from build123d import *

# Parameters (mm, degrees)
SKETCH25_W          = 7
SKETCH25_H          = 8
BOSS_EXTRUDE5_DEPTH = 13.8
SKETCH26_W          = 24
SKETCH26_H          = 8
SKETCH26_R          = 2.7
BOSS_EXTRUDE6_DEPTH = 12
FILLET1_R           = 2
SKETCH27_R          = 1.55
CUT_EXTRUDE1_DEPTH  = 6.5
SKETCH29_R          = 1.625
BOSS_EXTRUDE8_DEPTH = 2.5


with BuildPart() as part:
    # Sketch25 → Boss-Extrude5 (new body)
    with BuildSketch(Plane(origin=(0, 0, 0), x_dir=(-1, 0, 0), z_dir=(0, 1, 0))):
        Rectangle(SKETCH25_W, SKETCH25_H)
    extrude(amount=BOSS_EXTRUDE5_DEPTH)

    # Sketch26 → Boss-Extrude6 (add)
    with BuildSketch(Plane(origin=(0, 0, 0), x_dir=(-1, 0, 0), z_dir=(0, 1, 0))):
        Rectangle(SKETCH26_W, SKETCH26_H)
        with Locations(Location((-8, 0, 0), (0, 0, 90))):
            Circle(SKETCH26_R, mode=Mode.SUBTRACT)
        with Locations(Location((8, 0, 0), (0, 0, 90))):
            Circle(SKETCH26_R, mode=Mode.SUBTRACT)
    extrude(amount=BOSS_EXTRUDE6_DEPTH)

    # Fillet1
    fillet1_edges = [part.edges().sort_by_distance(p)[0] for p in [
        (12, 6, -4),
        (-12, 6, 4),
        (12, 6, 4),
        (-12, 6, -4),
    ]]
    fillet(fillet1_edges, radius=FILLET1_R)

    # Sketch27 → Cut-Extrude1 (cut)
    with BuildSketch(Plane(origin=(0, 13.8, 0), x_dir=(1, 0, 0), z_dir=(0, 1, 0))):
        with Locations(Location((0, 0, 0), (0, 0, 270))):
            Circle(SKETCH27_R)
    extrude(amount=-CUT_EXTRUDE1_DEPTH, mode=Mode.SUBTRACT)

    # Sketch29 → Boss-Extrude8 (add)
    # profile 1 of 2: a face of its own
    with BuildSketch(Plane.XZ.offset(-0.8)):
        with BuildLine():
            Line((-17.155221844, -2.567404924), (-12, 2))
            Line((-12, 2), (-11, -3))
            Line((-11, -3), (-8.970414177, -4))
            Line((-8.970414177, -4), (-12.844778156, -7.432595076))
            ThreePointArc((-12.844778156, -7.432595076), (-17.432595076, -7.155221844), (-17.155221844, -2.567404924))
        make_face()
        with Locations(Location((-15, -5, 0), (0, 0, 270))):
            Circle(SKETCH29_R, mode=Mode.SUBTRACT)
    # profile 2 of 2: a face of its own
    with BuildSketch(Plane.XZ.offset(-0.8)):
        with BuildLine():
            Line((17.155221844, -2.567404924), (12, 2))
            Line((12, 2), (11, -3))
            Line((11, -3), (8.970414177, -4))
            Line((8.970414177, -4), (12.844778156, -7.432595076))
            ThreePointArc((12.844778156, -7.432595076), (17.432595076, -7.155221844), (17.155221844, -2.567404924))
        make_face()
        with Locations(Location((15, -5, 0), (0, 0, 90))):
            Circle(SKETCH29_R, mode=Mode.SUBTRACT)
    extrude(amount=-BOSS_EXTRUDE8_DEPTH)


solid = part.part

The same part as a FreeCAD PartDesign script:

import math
import FreeCAD as App
import Part
import Sketcher

V = App.Vector


def edges_at(feature, points):
    """Names of the edges that pass closest to the given points."""
    edges = feature.Shape.Edges
    near = lambda p: min(range(len(edges)), key=lambda i: edges[i].distToShape(Part.Vertex(*p))[0])
    return sorted({f"Edge{near(p) + 1}" for p in points})


def add_polygon(sketch, points):
    """Adds a closed chain of lines whose ends are joined by coincident constraints."""
    first, n = sketch.GeometryCount, len(points)
    for a, b in zip(points, points[1:] + points[:1]):
        sketch.addGeometry(Part.LineSegment(App.Vector(*a, 0), App.Vector(*b, 0)), False)
    for i in range(n):
        sketch.addConstraint(Sketcher.Constraint("Coincident", first + i, 2, first + (i + 1) % n, 1))

doc = App.newDocument("Part")
body = doc.addObject("PartDesign::Body", "Body")

# Sketch on XZ plane
sketch1 = body.newObject("Sketcher::SketchObject", "Sketch")
sketch1.AttachmentSupport = (doc.getObject("XZ_Plane"), [""])
sketch1.MapMode = "FlatFace"
add_polygon(sketch1, [(4, 4), (4, -4), (-4, -4), (-4, 4)])  # lines 0-3
sketch1.addConstraint([
    Sketcher.Constraint("Vertical", 0),
    Sketcher.Constraint("Horizontal", 1),
    Sketcher.Constraint("Vertical", 2),
    Sketcher.Constraint("Horizontal", 3),
    Sketcher.Constraint("Symmetric", 0, 2, 2, 2, -1, 1),
    Sketcher.Constraint("DistanceX", 1, 2, 1, 1, 7.0),
    Sketcher.Constraint("DistanceY", 0, 2, 0, 1, 8.0),
])
pad1 = body.newObject("PartDesign::Pad", "Pad")
pad1.Profile = sketch1
pad1.Length = 13.8
pad1.Reversed = True

# Sketch on XZ plane
sketch2 = body.newObject("Sketcher::SketchObject", "Sketch001")
sketch2.AttachmentSupport = (doc.getObject("XZ_Plane"), [""])
sketch2.MapMode = "FlatFace"
add_polygon(sketch2, [(12, 4), (12, -4), (-12, -4), (-12, 4)])  # lines 0-3
sketch2.addGeometry(Part.Circle(V(8, 0, 0), V(0, 0, 1), 2.7), False)  # 4
sketch2.addGeometry(Part.Circle(V(-8, 0, 0), V(0, 0, 1), 2.7), False)  # 5
sketch2.addConstraint([
    Sketcher.Constraint("Vertical", 0),
    Sketcher.Constraint("Horizontal", 1),
    Sketcher.Constraint("Vertical", 2),
    Sketcher.Constraint("Horizontal", 3),
    Sketcher.Constraint("Equal", 4, 5),
    Sketcher.Constraint("Symmetric", 4, 3, 5, 3, -1, 1),
    Sketcher.Constraint("Symmetric", 0, 2, 2, 2, -1, 1),
    Sketcher.Constraint("PointOnObject", 4, 3, -1),
    Sketcher.Constraint("Diameter", 4, 5.4),
    Sketcher.Constraint("DistanceX", 1, 2, 1, 1, 24.0),
    Sketcher.Constraint("DistanceY", 0, 2, 0, 1, 8.0),
    Sketcher.Constraint("DistanceX", -1, 1, 4, 3, 8.0),
])
pad2 = body.newObject("PartDesign::Pad", "Pad001")
pad2.Profile = sketch2
pad2.Length = 12
pad2.Reversed = True
doc.recompute()

fillet = body.newObject("PartDesign::Fillet", "Fillet")
fillet.Base = (pad2, edges_at(pad2, [
    (12, 6, -4),
    (-12, 6, 4),
    (12, 6, 4),
    (-12, 6, -4),
]))
fillet.Radius = 2

# Sketch on XZ plane
sketch3 = body.newObject("Sketcher::SketchObject", "Sketch002")
sketch3.AttachmentSupport = (doc.getObject("XZ_Plane"), [""])
sketch3.MapMode = "FlatFace"
sketch3.AttachmentOffset = App.Placement(V(0, 0, -13.8), App.Rotation())
sketch3.addGeometry(Part.Circle(V(0, 0, 0), V(0, 0, 1), 1.6), False)
sketch3.addConstraint([
    Sketcher.Constraint("Coincident", 0, 3, -1, 1),
    Sketcher.Constraint("Diameter", 0, 3.1),
])
pocket1 = body.newObject("PartDesign::Pocket", "Pocket")
pocket1.Profile = sketch3
pocket1.Length = 6.5
pocket1.Reversed = True

# Sketch on XZ plane
sketch4 = body.newObject("Sketcher::SketchObject", "Sketch003")
sketch4.AttachmentSupport = (doc.getObject("XZ_Plane"), [""])
sketch4.MapMode = "FlatFace"
sketch4.AttachmentOffset = App.Placement(V(0, 0, -0.8), App.Rotation())
sketch4.addGeometry([
    Part.LineSegment(V(-12, 2, 0), V(-17.2, -2.6, 0)),  # 0
    Part.ArcOfCircle(Part.Circle(V(-15, -5, 0), V(0, 0, 1), 3.2), math.radians(132), math.radians(312)),  # 1
    Part.LineSegment(V(-12.8, -7.4, 0), V(-9, -4, 0)),  # 2
    Part.LineSegment(V(-9, -4, 0), V(-11, -3, 0)),  # 3
    Part.LineSegment(V(-11, -3, 0), V(-12, 2, 0)),  # 4
    Part.Circle(V(-15, -5, 0), V(0, 0, 1), 1.6),  # 5
    Part.LineSegment(V(17.2, -2.6, 0), V(12, 2, 0)),  # 6
    Part.LineSegment(V(12, 2, 0), V(11, -3, 0)),  # 7
    Part.LineSegment(V(11, -3, 0), V(9, -4, 0)),  # 8
    Part.LineSegment(V(9, -4, 0), V(12.8, -7.4, 0)),  # 9
    Part.ArcOfCircle(Part.Circle(V(15, -5, 0), V(0, 0, 1), 3.2), math.radians(-132), math.radians(48)),  # 10
    Part.Circle(V(15, -5, 0), V(0, 0, 1), 1.6),  # 11
], False)
sketch4.addConstraint([
    Sketcher.Constraint("Tangent", 0, 2, 1, 1),
    Sketcher.Constraint("Tangent", 1, 2, 2, 1),
    Sketcher.Constraint("Coincident", 2, 2, 3, 1),
    Sketcher.Constraint("Coincident", 3, 2, 4, 1),
    Sketcher.Constraint("Coincident", 4, 2, 0, 1),
    Sketcher.Constraint("Coincident", 6, 2, 7, 1),
    Sketcher.Constraint("Coincident", 7, 2, 8, 1),
    Sketcher.Constraint("Coincident", 8, 2, 9, 1),
    Sketcher.Constraint("Tangent", 9, 2, 10, 1),
    Sketcher.Constraint("Tangent", 10, 2, 6, 1),
    Sketcher.Constraint("Coincident", 5, 3, 1, 3),
    Sketcher.Constraint("Coincident", 11, 3, 10, 3),
    Sketcher.Constraint("Equal", 1, 10),
    Sketcher.Constraint("Equal", 5, 11),
    Sketcher.Constraint("Symmetric", 1, 3, 10, 3, -2),
    Sketcher.Constraint("Symmetric", 4, 2, 6, 2, -2),
    Sketcher.Constraint("Symmetric", 3, 2, 7, 2, -2),
    Sketcher.Constraint("Symmetric", 2, 2, 8, 2, -2),
    Sketcher.Constraint("Parallel", 0, 2),
    Sketcher.Constraint("Diameter", 5, 3.25),
    Sketcher.Constraint("Radius", 1, 3.25),
    Sketcher.Constraint("DistanceX", 1, 3, -1, 1, 15.0),
    Sketcher.Constraint("DistanceY", 1, 3, -1, 1, 5.0),
    Sketcher.Constraint("DistanceY", 2, 2, -1, 1, 4.0),
    Sketcher.Constraint("DistanceX", 3, 2, -1, 1, 11.0),
    Sketcher.Constraint("DistanceY", 3, 2, -1, 1, 3.0),
    Sketcher.Constraint("DistanceX", 4, 2, -1, 1, 12.0),
    Sketcher.Constraint("DistanceY", -1, 1, 4, 2, 2.0),
])
pad3 = body.newObject("PartDesign::Pad", "Pad002")
pad3.Profile = sketch4
pad3.Length = 2.5
pad3.Reversed = True

doc.recompute()
